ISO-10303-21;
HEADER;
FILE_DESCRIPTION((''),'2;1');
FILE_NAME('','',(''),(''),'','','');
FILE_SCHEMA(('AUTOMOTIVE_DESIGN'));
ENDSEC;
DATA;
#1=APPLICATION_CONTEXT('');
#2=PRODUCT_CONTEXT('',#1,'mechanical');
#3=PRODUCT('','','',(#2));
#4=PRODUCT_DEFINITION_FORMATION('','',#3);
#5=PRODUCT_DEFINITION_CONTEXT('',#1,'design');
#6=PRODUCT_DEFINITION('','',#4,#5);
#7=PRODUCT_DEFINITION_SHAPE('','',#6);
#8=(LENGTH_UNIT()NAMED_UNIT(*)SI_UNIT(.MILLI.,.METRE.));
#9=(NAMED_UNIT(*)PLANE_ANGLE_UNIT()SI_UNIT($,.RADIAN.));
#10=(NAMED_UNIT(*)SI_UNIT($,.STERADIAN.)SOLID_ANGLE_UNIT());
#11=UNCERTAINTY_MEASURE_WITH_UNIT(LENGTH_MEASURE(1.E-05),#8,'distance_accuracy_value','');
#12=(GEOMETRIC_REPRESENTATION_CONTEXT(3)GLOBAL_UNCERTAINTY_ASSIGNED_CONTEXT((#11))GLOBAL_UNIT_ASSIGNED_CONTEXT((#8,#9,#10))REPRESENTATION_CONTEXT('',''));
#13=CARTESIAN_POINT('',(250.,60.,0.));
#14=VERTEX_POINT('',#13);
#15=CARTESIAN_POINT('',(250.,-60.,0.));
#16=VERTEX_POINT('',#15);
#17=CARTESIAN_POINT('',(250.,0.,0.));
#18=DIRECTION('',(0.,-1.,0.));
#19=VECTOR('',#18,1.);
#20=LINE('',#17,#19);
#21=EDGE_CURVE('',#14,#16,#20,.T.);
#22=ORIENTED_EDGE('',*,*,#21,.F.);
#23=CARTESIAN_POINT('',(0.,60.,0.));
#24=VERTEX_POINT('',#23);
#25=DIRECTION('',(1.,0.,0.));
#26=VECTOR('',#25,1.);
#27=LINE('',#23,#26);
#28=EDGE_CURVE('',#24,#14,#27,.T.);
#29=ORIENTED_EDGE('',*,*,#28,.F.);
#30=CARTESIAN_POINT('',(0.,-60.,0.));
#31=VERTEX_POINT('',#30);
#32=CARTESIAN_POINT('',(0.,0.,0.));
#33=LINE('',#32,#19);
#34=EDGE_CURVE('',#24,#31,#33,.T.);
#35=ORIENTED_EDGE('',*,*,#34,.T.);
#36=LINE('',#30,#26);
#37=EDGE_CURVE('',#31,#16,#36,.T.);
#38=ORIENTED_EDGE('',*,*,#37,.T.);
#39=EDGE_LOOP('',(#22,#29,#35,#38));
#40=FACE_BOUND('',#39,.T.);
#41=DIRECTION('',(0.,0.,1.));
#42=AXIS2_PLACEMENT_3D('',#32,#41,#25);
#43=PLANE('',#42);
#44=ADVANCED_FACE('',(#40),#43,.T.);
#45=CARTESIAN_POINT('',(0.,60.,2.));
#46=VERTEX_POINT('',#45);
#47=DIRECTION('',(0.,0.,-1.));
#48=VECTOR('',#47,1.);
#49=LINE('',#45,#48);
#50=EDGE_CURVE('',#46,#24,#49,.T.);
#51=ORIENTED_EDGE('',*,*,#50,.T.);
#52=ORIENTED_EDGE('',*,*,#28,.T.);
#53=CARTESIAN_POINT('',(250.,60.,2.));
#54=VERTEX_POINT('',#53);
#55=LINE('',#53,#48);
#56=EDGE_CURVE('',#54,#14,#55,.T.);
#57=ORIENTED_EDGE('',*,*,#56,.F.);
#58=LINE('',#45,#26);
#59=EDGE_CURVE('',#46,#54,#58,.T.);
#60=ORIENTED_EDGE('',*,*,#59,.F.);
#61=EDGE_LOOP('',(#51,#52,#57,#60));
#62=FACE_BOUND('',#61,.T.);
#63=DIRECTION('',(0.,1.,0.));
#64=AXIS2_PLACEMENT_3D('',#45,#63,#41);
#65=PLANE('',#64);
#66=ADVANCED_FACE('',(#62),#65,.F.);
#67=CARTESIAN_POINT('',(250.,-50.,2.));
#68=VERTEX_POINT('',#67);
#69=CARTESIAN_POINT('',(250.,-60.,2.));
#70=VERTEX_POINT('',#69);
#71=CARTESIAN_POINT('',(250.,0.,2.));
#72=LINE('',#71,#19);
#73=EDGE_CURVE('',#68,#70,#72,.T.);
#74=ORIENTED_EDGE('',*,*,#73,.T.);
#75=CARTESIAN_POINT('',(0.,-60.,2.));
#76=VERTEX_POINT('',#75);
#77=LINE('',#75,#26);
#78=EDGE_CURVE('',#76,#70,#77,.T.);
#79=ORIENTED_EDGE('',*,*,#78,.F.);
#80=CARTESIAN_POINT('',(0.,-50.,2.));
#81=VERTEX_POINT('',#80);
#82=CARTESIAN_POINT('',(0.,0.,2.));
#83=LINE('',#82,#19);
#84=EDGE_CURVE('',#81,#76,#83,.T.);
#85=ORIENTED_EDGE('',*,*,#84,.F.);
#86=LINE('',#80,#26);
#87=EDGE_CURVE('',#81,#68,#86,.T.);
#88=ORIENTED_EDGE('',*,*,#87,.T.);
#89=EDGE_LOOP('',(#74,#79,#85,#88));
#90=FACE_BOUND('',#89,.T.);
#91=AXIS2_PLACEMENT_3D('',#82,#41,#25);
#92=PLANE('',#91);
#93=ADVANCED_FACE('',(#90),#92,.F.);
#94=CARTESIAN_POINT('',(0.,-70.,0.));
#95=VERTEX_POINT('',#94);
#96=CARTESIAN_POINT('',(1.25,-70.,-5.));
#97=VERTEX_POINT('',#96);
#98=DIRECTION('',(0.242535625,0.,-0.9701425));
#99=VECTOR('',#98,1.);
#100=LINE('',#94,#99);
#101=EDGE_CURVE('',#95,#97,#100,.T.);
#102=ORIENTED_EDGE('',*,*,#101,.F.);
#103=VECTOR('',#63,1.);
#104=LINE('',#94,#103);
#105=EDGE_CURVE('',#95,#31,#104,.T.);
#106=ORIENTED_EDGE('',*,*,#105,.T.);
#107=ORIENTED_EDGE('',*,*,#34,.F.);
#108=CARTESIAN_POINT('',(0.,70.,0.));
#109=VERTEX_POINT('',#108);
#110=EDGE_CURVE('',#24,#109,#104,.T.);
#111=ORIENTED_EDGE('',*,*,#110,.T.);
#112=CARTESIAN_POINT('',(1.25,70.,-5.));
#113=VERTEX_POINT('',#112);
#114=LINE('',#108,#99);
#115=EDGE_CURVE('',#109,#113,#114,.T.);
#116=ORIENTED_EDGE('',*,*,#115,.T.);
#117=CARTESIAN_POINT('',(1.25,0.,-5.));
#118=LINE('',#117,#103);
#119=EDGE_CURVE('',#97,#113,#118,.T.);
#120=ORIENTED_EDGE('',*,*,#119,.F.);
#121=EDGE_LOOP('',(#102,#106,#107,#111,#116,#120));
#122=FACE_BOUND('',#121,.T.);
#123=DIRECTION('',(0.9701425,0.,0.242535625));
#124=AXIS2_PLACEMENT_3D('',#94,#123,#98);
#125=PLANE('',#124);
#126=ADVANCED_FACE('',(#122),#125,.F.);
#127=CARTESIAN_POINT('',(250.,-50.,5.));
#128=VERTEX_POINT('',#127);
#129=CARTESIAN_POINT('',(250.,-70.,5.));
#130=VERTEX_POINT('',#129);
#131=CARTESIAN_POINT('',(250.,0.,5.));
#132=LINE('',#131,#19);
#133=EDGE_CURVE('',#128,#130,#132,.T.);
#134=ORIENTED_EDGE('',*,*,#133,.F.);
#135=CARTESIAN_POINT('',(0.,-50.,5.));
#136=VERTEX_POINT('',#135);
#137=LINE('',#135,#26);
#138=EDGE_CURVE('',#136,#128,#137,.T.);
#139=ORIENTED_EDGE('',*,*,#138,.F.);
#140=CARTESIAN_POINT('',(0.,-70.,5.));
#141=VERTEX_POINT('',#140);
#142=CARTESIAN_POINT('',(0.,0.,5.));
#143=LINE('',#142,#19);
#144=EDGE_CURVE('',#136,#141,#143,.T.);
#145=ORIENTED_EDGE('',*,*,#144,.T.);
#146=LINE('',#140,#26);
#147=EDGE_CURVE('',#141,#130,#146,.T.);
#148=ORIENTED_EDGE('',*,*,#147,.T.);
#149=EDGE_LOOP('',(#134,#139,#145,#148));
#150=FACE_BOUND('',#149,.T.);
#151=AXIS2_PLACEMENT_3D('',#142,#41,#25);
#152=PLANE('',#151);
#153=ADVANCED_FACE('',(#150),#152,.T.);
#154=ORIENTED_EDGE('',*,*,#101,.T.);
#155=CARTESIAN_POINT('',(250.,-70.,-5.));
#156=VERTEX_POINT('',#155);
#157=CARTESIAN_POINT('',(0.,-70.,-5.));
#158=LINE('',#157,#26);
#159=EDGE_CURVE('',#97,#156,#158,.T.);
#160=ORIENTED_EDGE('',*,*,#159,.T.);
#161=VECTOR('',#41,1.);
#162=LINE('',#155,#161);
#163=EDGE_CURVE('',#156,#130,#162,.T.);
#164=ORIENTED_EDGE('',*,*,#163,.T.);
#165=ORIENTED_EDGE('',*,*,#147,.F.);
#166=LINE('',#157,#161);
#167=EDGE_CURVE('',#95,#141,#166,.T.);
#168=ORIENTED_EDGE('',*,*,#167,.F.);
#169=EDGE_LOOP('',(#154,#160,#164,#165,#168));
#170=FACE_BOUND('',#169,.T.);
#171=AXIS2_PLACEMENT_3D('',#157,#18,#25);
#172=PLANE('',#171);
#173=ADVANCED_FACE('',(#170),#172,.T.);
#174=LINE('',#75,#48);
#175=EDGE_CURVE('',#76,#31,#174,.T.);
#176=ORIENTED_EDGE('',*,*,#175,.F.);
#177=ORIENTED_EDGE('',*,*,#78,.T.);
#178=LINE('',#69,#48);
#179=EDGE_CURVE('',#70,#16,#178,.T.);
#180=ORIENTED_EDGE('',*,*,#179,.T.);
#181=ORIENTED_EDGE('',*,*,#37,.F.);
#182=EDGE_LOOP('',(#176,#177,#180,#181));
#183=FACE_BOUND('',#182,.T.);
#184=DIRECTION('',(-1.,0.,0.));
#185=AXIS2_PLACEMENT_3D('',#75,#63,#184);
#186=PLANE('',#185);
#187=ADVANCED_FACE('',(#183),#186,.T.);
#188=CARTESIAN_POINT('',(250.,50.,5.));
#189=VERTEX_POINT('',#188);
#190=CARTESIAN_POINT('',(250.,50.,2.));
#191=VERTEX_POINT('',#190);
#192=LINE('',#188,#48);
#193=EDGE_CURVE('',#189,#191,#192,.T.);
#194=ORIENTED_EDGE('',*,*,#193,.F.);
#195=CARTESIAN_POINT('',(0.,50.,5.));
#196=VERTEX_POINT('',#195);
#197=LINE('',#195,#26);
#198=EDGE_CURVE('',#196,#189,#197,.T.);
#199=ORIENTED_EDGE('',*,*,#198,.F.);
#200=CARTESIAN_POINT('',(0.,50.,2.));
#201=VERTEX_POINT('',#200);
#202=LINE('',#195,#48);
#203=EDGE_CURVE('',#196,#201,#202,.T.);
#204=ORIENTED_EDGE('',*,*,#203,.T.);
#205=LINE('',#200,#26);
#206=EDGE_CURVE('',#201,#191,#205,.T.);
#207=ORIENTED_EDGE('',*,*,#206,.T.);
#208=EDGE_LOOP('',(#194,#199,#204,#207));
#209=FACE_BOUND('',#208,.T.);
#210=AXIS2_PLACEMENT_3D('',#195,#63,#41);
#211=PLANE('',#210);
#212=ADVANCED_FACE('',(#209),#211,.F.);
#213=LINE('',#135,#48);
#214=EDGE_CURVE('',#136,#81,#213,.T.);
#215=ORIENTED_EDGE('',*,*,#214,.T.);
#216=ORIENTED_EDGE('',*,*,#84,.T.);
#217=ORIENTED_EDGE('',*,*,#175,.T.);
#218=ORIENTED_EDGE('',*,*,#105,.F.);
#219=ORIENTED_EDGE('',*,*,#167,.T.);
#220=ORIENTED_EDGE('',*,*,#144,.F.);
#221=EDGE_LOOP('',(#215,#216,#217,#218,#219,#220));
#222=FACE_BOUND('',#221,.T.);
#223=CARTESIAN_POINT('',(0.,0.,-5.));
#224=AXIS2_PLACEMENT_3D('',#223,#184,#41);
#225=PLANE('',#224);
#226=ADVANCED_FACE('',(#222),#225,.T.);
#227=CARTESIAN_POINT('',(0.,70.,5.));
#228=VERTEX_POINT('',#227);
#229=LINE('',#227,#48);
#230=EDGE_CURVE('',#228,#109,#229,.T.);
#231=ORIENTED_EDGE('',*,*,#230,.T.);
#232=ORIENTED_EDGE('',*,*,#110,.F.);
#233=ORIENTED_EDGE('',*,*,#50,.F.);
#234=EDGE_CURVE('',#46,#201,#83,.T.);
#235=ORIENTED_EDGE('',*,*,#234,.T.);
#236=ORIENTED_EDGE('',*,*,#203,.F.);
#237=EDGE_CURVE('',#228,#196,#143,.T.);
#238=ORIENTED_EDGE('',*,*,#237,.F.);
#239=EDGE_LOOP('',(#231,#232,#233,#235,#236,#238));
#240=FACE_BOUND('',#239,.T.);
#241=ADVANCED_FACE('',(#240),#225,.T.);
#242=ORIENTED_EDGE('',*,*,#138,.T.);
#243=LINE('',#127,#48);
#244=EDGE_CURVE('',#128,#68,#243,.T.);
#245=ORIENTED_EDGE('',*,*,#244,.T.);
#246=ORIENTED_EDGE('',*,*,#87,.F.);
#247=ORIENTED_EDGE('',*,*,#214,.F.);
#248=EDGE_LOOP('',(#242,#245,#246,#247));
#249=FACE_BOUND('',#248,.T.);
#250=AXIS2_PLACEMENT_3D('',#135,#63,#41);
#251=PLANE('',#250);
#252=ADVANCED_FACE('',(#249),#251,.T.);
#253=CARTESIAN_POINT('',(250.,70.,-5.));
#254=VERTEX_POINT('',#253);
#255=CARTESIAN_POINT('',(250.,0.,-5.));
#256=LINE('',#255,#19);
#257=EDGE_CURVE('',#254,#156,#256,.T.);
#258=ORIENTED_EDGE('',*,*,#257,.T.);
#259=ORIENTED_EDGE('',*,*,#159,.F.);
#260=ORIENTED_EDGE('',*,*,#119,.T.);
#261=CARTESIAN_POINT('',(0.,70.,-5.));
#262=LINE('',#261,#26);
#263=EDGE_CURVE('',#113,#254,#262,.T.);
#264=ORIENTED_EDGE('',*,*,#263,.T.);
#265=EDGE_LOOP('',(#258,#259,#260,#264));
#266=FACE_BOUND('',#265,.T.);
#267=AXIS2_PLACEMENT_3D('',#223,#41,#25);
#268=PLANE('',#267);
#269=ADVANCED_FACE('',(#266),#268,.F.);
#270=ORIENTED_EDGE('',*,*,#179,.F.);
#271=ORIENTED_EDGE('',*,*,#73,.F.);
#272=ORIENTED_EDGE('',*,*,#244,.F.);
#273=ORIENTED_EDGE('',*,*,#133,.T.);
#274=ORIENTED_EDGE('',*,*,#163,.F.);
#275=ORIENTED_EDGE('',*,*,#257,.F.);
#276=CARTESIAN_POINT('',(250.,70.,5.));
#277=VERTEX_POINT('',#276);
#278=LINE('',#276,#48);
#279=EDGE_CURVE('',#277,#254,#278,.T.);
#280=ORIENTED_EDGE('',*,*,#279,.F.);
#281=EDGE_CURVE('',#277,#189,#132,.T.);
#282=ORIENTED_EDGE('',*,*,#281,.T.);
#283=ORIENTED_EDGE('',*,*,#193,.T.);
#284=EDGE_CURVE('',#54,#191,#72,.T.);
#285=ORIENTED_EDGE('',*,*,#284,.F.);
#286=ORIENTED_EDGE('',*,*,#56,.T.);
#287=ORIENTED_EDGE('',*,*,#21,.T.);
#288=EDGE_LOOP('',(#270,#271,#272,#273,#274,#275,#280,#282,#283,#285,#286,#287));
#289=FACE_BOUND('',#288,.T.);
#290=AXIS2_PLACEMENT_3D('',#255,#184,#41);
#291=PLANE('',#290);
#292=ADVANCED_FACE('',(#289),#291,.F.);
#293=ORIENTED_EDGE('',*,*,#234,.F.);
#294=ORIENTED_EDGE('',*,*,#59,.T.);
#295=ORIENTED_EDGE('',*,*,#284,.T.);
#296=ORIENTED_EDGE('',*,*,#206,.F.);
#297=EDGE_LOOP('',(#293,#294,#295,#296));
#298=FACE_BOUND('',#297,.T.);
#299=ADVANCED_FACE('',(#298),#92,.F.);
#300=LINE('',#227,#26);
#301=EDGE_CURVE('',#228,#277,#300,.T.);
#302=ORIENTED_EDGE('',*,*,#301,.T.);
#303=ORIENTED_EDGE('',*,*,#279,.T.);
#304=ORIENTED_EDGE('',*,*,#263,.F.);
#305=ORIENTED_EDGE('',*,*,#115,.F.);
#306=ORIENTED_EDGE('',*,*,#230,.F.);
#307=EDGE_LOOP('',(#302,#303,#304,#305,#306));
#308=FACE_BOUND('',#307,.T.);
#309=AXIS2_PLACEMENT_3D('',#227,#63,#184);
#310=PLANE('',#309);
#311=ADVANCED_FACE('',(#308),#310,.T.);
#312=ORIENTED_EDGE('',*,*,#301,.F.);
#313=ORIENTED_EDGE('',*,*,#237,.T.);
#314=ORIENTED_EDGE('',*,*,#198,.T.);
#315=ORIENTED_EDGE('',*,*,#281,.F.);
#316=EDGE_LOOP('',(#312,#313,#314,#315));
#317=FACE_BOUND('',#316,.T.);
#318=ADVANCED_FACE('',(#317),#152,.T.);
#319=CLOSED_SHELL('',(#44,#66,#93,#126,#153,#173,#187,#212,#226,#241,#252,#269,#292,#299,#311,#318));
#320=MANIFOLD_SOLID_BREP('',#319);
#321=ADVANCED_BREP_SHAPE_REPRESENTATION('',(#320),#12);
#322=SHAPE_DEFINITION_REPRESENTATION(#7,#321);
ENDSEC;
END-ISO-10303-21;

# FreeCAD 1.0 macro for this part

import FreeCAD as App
import Part
import Sketcher
Q = App.Units.Quantity


def add_polygon(sketch, points):
    """Adds a closed chain of lines whose ends are joined by coincident constraints."""
    first, n = sketch.GeometryCount, len(points)
    for a, b in zip(points, points[1:] + points[:1]):
        sketch.addGeometry(Part.LineSegment(App.Vector(*a, 0), App.Vector(*b, 0)), False)
    for i in range(n):
        sketch.addConstraint(Sketcher.Constraint("Coincident", first + i, 2, first + (i + 1) % n, 1))

doc = App.newDocument("Part")
body = doc.addObject("PartDesign::Body", "Body")

sketch1 = body.newObject("Sketcher::SketchObject", "Sketch")
sketch1.AttachmentSupport = (doc.getObject("XY_Plane"), [""])
sketch1.MapMode = "FlatFace"
add_polygon(sketch1, [(250, 70), (0, 70), (0, -70), (250, -70)])
sketch1.addConstraint([
    Sketcher.Constraint("Horizontal", 0),
    Sketcher.Constraint("Vertical", 1),
    Sketcher.Constraint("Horizontal", 2),
    Sketcher.Constraint("Vertical", 3),
    Sketcher.Constraint("Symmetric", 0, 2, 1, 2, -1, 1),
    Sketcher.Constraint("DistanceX", 0, 2, 0, 1, Q("250 mm")),
    Sketcher.Constraint("DistanceY", 1, 2, 1, 1, Q("140 mm")),
])
pad1 = body.newObject("PartDesign::Pad", "Pad")
pad1.Profile = sketch1
pad1.Type = "TwoLengths"
pad1.Length = 5
pad1.Length2 = 5

sketch2 = body.newObject("Sketcher::SketchObject", "Sketch001")
sketch2.AttachmentSupport = (doc.getObject("XY_Plane"), [""])
sketch2.MapMode = "FlatFace"
add_polygon(sketch2, [(0, 50), (0, -50), (250, -50), (250, 50)])
sketch2.addConstraint([
    Sketcher.Constraint("Vertical", 0),
    Sketcher.Constraint("Horizontal", 1),
    Sketcher.Constraint("Vertical", 2),
    Sketcher.Constraint("Horizontal", 3),
    Sketcher.Constraint("Symmetric", 0, 2, 3, 2, -1, 1),
    Sketcher.Constraint("DistanceX", 1, 1, 1, 2, Q("250 mm")),
    Sketcher.Constraint("DistanceY", 0, 2, 0, 1, Q("100 mm")),
])
pocket1 = body.newObject("PartDesign::Pocket", "Pocket")
pocket1.Profile = sketch2
pocket1.Type = "ThroughAll"
pocket1.Reversed = True

sketch3 = body.newObject("Sketcher::SketchObject", "Sketch002")
sketch3.AttachmentSupport = (doc.getObject("XY_Plane"), [""])
sketch3.MapMode = "FlatFace"
add_polygon(sketch3, [(0, 60), (0, 50), (250, 50), (250, 60)])
add_polygon(sketch3, [(0, -50), (0, -60), (250, -60), (250, -50)])
sketch3.addConstraint([
    Sketcher.Constraint("Vertical", 0),
    Sketcher.Constraint("Horizontal", 1),
    Sketcher.Constraint("Vertical", 2),
    Sketcher.Constraint("Horizontal", 3),
    Sketcher.Constraint("Vertical", 4),
    Sketcher.Constraint("Horizontal", 5),
    Sketcher.Constraint("Vertical", 6),
    Sketcher.Constraint("Horizontal", 7),
    Sketcher.Constraint("Symmetric", 3, 2, 4, 2, -1, 1),
    Sketcher.Constraint("Symmetric", 1, 2, 6, 2, -1),
    Sketcher.Constraint("PointOnObject", 0, 2, -2),
    Sketcher.Constraint("DistanceX", 1, 1, 1, 2, Q("250 mm")),
    Sketcher.Constraint("DistanceY", 0, 2, 0, 1, Q("10 mm")),
    Sketcher.Constraint("DistanceY", -1, 1, 0, 2, Q("50 mm")),
])
pocket2 = body.newObject("PartDesign::Pocket", "Pocket001")
pocket2.Profile = sketch3
pocket2.Length = 2
pocket2.Reversed = True

sketch4 = body.newObject("Sketcher::SketchObject", "Sketch003")
sketch4.AttachmentSupport = (doc.getObject("XZ_Plane"), [""])
sketch4.MapMode = "FlatFace"
add_polygon(sketch4, [(0, 0), (8, -30), (0, -30)])
sketch4.addConstraint([
    Sketcher.Constraint("Horizontal", 1),
    Sketcher.Constraint("Vertical", 2),
    Sketcher.Constraint("Coincident", 2, 2, -1, 1),
    Sketcher.Constraint("DistanceY", 2, 1, 2, 2, Q("30 mm")),
    Sketcher.Constraint("DistanceX", 1, 2, 1, 1, Q("7.5 mm")),
])
pocket3 = body.newObject("PartDesign::Pocket", "Pocket002")
pocket3.Profile = sketch4
pocket3.Type = "ThroughAll"
pocket3.Midplane = True

doc.recompute()
